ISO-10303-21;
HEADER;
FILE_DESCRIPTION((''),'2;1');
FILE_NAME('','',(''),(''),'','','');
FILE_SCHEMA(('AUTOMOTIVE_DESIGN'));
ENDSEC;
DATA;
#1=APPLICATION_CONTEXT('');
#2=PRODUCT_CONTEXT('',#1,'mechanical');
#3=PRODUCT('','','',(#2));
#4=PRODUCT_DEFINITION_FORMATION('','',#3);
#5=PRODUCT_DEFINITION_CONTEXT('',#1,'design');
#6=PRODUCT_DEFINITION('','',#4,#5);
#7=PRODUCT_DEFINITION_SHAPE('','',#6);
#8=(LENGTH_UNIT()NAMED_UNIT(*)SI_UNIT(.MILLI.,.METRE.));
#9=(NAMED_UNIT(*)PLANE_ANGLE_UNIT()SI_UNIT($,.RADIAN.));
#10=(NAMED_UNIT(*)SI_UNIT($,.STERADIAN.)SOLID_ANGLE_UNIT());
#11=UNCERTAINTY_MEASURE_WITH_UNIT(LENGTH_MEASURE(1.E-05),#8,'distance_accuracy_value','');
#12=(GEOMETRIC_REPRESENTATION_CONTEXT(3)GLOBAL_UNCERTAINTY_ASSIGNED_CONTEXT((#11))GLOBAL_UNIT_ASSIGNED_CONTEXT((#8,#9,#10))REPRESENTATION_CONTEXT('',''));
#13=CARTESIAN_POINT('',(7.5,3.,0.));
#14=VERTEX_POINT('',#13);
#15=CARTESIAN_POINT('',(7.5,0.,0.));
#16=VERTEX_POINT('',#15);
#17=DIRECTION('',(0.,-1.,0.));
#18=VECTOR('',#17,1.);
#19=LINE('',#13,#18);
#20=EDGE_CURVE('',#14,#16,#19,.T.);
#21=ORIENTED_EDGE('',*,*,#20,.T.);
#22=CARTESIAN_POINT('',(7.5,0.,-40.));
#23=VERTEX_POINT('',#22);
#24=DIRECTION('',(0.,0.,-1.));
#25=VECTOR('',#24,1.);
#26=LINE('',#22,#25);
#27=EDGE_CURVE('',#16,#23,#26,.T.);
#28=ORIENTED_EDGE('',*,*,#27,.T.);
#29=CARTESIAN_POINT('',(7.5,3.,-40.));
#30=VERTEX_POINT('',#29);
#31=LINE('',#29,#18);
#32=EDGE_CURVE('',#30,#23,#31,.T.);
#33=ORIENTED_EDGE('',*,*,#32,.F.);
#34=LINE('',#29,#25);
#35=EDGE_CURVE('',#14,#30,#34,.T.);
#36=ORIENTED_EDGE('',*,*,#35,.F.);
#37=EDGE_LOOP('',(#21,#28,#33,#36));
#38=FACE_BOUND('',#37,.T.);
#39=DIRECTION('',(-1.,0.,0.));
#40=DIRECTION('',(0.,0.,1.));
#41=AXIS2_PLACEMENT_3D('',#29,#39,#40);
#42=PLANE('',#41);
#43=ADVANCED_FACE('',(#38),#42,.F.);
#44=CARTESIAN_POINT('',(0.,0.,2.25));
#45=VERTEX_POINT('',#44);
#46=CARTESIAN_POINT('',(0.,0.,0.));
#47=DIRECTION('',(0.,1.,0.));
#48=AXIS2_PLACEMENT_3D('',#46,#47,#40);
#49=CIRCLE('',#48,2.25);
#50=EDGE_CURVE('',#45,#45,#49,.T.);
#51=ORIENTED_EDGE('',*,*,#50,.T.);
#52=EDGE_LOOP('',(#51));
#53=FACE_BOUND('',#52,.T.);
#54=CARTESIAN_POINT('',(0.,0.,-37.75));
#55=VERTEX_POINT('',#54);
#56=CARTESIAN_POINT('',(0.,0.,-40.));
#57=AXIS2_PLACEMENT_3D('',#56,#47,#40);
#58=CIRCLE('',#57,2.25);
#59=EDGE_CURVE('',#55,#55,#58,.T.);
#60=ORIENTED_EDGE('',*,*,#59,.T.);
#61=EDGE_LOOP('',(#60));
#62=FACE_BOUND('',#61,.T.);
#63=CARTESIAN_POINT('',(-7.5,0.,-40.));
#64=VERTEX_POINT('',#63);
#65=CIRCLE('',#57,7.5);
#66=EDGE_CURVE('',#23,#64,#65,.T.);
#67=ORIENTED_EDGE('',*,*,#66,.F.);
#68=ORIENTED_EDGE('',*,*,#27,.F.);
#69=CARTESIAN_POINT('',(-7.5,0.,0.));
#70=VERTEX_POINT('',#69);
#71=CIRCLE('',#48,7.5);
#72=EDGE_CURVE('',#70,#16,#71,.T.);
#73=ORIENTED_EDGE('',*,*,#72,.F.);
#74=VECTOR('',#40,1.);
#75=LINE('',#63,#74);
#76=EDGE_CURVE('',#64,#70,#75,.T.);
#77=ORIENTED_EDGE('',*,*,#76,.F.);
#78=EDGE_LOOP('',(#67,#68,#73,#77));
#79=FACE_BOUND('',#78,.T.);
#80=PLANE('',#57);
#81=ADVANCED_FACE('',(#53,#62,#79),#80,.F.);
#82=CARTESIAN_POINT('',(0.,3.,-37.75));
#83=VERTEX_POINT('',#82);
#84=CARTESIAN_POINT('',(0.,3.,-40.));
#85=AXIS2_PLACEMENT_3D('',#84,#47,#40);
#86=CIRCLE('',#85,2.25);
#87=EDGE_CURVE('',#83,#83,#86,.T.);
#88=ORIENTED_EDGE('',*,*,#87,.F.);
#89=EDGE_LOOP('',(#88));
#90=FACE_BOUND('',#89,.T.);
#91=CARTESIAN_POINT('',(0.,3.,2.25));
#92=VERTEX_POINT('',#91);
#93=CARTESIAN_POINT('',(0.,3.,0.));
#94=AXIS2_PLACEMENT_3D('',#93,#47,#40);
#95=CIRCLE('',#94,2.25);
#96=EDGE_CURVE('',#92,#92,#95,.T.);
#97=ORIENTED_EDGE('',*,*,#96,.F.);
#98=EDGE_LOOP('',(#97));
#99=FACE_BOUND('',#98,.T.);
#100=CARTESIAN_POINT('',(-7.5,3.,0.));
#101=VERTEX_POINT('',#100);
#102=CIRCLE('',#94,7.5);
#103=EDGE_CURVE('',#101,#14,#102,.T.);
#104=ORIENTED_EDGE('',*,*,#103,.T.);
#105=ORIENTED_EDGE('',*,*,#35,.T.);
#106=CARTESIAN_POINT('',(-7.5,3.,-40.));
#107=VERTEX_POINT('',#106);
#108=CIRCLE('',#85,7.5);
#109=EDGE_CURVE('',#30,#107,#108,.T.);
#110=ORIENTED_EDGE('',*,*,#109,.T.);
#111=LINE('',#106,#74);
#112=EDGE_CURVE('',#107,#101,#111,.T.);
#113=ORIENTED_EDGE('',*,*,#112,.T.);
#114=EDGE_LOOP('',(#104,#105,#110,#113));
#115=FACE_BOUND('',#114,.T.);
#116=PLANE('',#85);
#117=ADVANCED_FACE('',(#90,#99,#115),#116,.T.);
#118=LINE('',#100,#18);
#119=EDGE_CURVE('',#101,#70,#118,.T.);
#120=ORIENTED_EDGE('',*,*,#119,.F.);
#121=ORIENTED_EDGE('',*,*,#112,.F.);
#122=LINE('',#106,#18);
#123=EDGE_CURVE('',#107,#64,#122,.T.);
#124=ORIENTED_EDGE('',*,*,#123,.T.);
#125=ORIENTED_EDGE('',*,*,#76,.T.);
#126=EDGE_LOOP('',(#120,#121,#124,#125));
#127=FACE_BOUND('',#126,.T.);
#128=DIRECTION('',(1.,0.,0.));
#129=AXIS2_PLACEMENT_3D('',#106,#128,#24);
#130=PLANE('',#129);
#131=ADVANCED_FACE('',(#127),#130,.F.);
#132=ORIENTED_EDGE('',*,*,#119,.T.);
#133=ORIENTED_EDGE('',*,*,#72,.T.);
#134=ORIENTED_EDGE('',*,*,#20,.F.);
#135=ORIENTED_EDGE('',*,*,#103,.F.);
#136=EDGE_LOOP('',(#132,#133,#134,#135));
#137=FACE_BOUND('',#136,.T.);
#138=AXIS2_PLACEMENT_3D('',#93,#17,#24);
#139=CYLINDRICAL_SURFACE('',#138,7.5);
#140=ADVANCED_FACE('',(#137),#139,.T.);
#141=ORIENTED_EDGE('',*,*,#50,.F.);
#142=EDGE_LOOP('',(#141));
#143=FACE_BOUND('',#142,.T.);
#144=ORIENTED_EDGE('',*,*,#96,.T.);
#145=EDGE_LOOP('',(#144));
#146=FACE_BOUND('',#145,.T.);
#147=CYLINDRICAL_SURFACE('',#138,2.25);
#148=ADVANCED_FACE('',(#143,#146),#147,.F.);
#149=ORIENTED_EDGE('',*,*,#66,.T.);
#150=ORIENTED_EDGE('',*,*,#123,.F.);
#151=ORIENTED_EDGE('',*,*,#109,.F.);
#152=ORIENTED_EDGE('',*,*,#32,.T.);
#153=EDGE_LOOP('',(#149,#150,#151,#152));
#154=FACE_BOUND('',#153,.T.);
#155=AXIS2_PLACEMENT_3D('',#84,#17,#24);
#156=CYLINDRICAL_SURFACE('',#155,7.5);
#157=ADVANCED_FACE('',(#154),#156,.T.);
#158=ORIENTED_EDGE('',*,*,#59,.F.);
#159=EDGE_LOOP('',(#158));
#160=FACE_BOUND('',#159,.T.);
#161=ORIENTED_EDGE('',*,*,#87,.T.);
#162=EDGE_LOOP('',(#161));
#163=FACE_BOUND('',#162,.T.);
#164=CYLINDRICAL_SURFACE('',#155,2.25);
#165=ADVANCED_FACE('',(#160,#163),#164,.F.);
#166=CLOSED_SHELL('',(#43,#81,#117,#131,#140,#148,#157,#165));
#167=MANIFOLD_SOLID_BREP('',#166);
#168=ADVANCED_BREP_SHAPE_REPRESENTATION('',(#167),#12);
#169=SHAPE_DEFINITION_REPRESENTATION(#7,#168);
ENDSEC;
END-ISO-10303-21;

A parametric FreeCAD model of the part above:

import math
import FreeCAD as App
import Part
import Sketcher

V = App.Vector
Q = App.Units.Quantity

doc = App.newDocument("Part")
body = doc.addObject("PartDesign::Body", "Body")

# Sketch on XZ plane
sketch1 = doc.addObject("Sketcher::SketchObject", "Sketch")
body.addObject(sketch1)
sketch1.AttachmentSupport = (doc.XZ_Plane, [""])
sketch1.MapMode = "FlatFace"
sketch1.addGeometry([
    Part.LineSegment(V(-7.5, -40, 0), V(-7.5, 0, 0)),  # 0
    Part.ArcOfCircle(Part.Circle(V(0, 0, 0), V(0, 0, 1), 7.5), math.radians(0), math.radians(180)),  # 1
    Part.LineSegment(V(7.5, 0, 0), V(7.5, -40, 0)),  # 2
    Part.ArcOfCircle(Part.Circle(V(0, -40, 0), V(0, 0, 1), 7.5), math.radians(180), math.radians(360)),  # 3
    Part.Circle(V(0, 0, 0), V(0, 0, 1), 2.2),  # 4
    Part.Circle(V(0, -40, 0), V(0, 0, 1), 2.2),  # 5
], False)
sketch1.addConstraint([
    Sketcher.Constraint("Tangent", 0, 2, 1, 2),
    Sketcher.Constraint("Tangent", 1, 1, 2, 1),
    Sketcher.Constraint("Tangent", 2, 2, 3, 2),
    Sketcher.Constraint("Tangent", 3, 1, 0, 1),
    Sketcher.Constraint("Vertical", 0),
    Sketcher.Constraint("Vertical", 2),
    Sketcher.Constraint("Coincident", 1, 3, -1, 1),
    Sketcher.Constraint("Coincident", 4, 3, -1, 1),
    Sketcher.Constraint("Coincident", 5, 3, 3, 3),
    Sketcher.Constraint("Equal", 4, 5),
    Sketcher.Constraint("Diameter", 4, Q("4.5 mm")),
    Sketcher.Constraint("Radius", 1, Q("7.5 mm")),
    Sketcher.Constraint("DistanceY", 0, 1, 0, 2, Q("40 mm")),
])
pad1 = doc.addObject("PartDesign::Pad", "Pad")
body.addObject(pad1)
pad1.Profile = sketch1
pad1.Length = 3
pad1.Reversed = True

doc.recompute()
